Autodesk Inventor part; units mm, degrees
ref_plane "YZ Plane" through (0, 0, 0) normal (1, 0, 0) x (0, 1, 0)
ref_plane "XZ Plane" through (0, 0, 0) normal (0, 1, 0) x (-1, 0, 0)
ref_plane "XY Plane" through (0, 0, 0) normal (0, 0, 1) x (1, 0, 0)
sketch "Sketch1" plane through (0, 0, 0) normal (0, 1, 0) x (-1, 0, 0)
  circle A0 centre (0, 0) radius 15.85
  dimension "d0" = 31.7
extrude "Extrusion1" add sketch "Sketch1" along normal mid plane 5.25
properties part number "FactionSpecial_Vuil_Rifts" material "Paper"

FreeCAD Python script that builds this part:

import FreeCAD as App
import Part
import Sketcher

V = App.Vector

doc = App.newDocument("Part")
body = doc.addObject("PartDesign::Body", "Body")

sketch1 = body.newObject("Sketcher::SketchObject", "Sketch")
sketch1.AttachmentSupport = (doc.getObject("XZ_Plane"), [""])
sketch1.MapMode = "FlatFace"
sketch1.addGeometry(Part.Circle(V(0, 0, 0), V(0, 0, 1), 15.85), False)
sketch1.addConstraint([
    Sketcher.Constraint("Coincident", 0, 3, -1, 1),
    Sketcher.Constraint("Diameter", 0, 31.7),
])
pad1 = body.newObject("PartDesign::Pad", "Pad")
pad1.Profile = sketch1
pad1.Length = 5.25
pad1.Midplane = True

doc.recompute()
